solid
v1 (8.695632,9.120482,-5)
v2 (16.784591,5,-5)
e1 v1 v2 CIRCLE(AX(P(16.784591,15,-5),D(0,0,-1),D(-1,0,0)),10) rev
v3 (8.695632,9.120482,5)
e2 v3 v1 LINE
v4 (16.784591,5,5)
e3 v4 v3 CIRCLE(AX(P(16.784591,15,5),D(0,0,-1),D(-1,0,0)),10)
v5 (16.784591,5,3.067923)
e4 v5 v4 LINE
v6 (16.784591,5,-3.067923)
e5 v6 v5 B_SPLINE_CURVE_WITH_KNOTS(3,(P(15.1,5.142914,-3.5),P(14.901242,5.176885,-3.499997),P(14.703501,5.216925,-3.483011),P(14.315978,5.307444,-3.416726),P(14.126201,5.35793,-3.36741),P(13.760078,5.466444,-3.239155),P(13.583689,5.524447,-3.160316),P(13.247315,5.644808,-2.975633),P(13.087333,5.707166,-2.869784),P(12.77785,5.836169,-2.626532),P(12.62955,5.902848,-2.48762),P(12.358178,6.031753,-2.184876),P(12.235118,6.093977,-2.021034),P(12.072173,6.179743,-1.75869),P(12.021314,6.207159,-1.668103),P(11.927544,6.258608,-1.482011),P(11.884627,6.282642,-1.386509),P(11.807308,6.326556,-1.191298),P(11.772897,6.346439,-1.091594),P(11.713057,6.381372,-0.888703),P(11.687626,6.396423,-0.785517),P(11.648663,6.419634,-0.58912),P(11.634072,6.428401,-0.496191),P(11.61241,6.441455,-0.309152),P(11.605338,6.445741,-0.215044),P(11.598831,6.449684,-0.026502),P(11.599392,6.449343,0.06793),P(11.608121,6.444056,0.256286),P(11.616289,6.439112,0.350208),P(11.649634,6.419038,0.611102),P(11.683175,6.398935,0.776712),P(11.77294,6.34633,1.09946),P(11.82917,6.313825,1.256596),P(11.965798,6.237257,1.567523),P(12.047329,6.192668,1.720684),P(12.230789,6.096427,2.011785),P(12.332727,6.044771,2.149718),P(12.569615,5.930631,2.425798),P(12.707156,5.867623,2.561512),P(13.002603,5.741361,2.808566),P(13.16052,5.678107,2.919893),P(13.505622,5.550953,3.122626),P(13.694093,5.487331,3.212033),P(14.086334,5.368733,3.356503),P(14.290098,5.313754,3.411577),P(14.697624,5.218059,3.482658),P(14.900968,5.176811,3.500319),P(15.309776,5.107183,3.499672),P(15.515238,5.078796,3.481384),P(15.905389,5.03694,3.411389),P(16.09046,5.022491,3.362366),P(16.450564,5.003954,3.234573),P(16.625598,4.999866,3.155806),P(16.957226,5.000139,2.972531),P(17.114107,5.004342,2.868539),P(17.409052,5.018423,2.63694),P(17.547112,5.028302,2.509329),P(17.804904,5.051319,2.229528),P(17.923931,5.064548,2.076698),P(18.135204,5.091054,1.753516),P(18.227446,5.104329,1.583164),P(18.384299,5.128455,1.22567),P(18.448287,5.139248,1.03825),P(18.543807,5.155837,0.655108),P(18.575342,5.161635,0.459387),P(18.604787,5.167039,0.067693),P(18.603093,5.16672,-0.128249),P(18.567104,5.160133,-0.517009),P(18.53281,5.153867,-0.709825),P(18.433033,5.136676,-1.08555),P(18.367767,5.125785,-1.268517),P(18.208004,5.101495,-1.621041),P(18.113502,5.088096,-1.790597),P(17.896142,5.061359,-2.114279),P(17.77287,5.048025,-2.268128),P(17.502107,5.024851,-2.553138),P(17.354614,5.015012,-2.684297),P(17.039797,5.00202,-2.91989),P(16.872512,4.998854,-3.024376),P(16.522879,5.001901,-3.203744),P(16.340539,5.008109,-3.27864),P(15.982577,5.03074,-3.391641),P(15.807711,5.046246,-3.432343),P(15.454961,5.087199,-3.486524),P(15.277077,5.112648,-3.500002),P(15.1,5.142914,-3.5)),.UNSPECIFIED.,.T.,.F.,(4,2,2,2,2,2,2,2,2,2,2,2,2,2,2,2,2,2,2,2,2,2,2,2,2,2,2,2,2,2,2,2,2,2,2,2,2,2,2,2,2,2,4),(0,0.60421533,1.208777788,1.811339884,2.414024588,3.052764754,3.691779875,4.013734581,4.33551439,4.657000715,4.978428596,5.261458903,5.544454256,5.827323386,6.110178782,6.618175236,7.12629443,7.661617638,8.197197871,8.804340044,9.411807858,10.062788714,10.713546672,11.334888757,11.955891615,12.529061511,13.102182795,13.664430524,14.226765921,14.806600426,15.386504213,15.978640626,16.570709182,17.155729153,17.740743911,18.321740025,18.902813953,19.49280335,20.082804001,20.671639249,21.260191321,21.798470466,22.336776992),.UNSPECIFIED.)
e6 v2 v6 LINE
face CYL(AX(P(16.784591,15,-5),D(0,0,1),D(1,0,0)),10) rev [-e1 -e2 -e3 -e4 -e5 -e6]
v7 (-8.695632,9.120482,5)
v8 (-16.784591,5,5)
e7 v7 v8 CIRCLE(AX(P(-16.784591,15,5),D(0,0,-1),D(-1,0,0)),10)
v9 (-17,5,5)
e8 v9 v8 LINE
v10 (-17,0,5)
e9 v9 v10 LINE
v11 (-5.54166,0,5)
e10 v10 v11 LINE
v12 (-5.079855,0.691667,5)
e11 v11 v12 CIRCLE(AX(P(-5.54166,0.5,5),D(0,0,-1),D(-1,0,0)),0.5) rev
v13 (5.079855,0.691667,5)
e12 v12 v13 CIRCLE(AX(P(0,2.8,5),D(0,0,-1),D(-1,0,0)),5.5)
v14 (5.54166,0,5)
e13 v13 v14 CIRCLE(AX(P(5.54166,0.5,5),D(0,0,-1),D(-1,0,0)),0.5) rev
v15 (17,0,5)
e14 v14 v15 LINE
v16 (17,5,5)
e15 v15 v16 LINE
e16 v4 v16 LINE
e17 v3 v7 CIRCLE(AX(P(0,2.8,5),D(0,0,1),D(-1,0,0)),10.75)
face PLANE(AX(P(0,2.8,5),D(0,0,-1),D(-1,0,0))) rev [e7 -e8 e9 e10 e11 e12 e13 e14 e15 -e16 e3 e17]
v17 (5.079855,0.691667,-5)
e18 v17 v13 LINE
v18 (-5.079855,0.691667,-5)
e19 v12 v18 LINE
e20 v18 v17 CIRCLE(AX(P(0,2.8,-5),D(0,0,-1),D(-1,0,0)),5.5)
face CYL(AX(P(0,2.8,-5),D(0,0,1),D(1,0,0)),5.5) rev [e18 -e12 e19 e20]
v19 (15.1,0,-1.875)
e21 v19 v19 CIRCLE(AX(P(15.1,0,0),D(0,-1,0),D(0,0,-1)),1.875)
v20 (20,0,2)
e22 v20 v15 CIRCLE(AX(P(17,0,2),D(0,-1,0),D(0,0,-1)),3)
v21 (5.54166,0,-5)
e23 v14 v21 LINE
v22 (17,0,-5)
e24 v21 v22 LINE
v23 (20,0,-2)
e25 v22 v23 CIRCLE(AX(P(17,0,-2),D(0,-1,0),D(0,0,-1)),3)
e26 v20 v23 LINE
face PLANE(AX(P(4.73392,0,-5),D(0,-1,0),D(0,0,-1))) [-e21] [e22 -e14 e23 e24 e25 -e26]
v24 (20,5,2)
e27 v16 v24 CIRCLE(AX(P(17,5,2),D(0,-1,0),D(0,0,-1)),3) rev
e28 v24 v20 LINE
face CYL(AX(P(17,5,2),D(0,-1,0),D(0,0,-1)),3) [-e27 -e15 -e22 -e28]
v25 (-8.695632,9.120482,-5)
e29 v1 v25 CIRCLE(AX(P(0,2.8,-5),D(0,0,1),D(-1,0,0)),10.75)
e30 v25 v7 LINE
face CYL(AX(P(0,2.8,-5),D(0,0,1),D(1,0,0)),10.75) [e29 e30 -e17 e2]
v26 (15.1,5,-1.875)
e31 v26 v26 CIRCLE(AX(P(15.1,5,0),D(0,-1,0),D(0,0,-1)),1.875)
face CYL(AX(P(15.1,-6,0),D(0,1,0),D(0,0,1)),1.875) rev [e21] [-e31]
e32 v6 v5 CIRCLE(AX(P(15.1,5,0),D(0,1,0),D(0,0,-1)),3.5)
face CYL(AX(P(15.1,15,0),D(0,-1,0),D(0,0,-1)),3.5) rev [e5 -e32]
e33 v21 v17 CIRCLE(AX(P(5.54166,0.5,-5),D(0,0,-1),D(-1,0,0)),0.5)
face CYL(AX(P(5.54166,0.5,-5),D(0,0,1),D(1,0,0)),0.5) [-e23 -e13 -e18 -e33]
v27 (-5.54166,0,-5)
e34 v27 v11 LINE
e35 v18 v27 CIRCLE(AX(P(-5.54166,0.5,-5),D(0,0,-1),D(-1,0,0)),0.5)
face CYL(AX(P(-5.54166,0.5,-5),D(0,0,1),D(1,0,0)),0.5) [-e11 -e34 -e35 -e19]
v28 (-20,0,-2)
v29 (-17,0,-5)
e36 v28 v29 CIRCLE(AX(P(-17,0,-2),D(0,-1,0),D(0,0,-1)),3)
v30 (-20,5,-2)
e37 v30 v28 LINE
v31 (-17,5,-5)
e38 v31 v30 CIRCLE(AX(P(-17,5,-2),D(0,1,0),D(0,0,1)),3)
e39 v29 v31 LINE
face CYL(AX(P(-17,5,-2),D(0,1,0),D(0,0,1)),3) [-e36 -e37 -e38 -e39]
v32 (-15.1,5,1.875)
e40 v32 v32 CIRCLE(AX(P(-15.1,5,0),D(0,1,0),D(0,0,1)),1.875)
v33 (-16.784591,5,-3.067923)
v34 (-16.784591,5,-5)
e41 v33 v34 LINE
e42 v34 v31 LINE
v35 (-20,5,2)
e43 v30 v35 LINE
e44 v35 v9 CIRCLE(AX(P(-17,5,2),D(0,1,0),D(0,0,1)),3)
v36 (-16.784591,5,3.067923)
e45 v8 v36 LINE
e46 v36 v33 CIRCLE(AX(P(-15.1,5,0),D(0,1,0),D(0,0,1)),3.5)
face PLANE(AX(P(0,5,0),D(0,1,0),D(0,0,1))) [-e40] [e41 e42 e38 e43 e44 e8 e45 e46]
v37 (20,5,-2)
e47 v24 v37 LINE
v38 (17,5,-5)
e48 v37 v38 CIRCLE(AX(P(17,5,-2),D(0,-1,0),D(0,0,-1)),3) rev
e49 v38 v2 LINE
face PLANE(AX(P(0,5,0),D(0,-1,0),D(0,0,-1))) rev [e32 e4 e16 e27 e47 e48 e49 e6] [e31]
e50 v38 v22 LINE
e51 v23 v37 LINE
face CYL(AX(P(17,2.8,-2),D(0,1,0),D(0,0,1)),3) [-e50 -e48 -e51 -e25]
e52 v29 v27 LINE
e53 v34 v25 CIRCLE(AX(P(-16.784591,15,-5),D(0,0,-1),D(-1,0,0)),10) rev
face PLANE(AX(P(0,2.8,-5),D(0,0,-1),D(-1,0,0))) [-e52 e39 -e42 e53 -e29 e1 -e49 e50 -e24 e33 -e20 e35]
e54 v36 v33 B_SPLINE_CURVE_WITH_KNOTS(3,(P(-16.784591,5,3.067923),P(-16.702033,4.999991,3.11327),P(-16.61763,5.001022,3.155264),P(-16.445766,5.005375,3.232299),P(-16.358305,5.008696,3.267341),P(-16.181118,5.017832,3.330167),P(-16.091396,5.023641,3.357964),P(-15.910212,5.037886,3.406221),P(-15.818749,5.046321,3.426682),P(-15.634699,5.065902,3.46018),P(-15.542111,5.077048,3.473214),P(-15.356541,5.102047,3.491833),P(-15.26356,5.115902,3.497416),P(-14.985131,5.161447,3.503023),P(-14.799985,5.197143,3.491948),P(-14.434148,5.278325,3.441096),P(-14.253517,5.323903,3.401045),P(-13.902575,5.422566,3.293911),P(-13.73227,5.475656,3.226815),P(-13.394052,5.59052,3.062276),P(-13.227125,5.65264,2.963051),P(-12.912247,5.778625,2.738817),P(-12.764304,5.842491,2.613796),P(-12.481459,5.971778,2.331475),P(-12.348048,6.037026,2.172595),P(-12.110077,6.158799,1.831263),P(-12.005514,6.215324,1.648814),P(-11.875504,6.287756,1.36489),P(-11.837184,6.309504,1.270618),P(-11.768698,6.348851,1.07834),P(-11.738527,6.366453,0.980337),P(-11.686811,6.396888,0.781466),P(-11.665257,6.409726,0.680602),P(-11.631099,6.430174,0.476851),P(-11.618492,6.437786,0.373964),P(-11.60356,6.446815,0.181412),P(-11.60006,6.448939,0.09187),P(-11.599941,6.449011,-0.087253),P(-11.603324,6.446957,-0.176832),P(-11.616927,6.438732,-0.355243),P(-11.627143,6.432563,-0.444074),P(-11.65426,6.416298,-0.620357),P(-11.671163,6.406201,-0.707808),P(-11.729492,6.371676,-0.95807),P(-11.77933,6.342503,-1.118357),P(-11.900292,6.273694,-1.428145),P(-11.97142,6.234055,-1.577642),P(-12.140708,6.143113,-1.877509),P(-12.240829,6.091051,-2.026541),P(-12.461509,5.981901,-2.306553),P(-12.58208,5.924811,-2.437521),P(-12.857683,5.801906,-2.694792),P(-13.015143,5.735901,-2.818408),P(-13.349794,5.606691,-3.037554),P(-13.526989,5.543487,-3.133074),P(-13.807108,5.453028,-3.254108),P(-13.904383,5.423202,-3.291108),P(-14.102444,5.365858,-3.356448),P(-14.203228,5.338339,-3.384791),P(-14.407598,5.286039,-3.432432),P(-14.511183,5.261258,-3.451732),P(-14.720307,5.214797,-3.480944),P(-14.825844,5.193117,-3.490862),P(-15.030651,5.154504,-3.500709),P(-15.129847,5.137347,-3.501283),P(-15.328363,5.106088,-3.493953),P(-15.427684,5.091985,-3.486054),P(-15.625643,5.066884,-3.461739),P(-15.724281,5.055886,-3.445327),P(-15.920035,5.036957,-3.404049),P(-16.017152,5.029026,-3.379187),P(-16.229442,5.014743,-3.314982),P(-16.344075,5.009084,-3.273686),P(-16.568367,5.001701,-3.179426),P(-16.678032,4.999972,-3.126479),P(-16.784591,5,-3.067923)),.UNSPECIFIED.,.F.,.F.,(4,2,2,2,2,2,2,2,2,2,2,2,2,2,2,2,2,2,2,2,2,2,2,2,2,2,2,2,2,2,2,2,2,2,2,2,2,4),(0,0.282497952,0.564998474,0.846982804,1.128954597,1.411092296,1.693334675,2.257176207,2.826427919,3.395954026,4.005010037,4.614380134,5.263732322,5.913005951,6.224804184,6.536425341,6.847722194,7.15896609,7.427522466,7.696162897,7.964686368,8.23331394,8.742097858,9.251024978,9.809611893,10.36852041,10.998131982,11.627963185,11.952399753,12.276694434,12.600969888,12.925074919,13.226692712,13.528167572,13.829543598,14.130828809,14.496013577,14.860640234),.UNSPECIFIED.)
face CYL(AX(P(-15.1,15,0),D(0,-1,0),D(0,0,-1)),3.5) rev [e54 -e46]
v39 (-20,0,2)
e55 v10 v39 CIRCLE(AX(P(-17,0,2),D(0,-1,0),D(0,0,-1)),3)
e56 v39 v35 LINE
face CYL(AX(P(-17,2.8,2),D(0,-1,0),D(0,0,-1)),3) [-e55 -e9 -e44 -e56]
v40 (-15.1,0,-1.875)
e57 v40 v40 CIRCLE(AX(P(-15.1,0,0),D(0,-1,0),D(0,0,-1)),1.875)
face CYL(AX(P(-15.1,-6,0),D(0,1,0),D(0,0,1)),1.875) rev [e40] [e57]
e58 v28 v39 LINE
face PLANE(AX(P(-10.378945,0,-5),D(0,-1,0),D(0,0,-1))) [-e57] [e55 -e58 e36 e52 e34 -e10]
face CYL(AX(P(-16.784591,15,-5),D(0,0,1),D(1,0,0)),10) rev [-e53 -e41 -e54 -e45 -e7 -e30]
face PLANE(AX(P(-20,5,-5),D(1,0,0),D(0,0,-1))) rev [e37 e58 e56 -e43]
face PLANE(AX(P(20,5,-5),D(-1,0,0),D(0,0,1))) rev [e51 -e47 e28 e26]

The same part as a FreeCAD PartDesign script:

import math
import FreeCAD as App
import Part
import Sketcher
Q = App.Units.Quantity


def edges_at(feature, points):
    """Names of the edges that pass closest to the given points."""
    edges = feature.Shape.Edges
    near = lambda p: min(range(len(edges)), key=lambda i: edges[i].distToShape(Part.Vertex(*p))[0])
    return sorted({f"Edge{near(p) + 1}" for p in points})

doc = App.newDocument("Part")
body = doc.addObject("PartDesign::Body", "Body")

sketch1 = body.newObject("Sketcher::SketchObject", "Sketch")
sketch1.AttachmentSupport = (doc.getObject("XZ_Plane"), [""])
sketch1.MapMode = "FlatFace"
sketch1.AttachmentOffset = App.Placement(App.Vector(0, 0, 1), App.Rotation())
sketch1.addGeometry([
    Part.LineSegment(App.Vector(-20, -5, 0), App.Vector(-20, 5, 0)),
    Part.LineSegment(App.Vector(-20, 5, 0), App.Vector(20, 5, 0)),
    Part.LineSegment(App.Vector(20, 5, 0), App.Vector(20, -5, 0)),
    Part.LineSegment(App.Vector(20, -5, 0), App.Vector(-20, -5, 0)),
], False)
sketch1.addConstraint([
    Sketcher.Constraint("Coincident", 0, 2, 1, 1),
    Sketcher.Constraint("Coincident", 1, 2, 2, 1),
    Sketcher.Constraint("Coincident", 2, 2, 3, 1),
    Sketcher.Constraint("Coincident", 3, 2, 0, 1),
    Sketcher.Constraint("Vertical", 0),
    Sketcher.Constraint("Horizontal", 1),
    Sketcher.Constraint("Vertical", 2),
    Sketcher.Constraint("Horizontal", 3),
    Sketcher.Constraint("Symmetric", 0, 2, 2, 2, -1, 1),
    Sketcher.Constraint("DistanceX", 1, 1, 1, 2, Q("40 mm")),
    Sketcher.Constraint("DistanceY", 0, 1, 0, 2, Q("10 mm")),
])
pad1 = body.newObject("PartDesign::Pad", "Pad")
pad1.Profile = sketch1
pad1.Length = 5
doc.recompute()

fillet = body.newObject("PartDesign::Fillet", "Fillet")
fillet.Base = (pad1, edges_at(pad1, [
    (20, -3.5, 5),
    (-20, -3.5, 5),
    (-20, -3.5, -5),
    (20, -3.5, -5),
]))
fillet.Radius = 3
body2 = doc.addObject("PartDesign::Body", "Body001")

sketch2 = body2.newObject("Sketcher::SketchObject", "Sketch001")
sketch2.AttachmentSupport = (doc.getObject("XY_Plane001"), [""])
sketch2.MapMode = "FlatFace"
sketch2.addGeometry([
    Part.LineSegment(App.Vector(-10, 0, 0), App.Vector(-5, 0, 0)),
    Part.ArcOfCircle(Part.Circle(App.Vector(0, 3, 0), App.Vector(0, 0, 1), 6), math.radians(-31), math.radians(211)),
    Part.LineSegment(App.Vector(5, 0, 0), App.Vector(10, 0, 0)),
    Part.ArcOfCircle(Part.Circle(App.Vector(0, 3, 0), App.Vector(0, 0, 1), 11), math.radians(-15), math.radians(195)),
], False)
sketch2.addConstraint([
    Sketcher.Constraint("Coincident", 0, 2, 1, 2),
    Sketcher.Constraint("Coincident", 1, 1, 2, 1),
    Sketcher.Constraint("Coincident", 2, 2, 3, 1),
    Sketcher.Constraint("Coincident", 3, 2, 0, 1),
    Sketcher.Constraint("Horizontal", 0),
    Sketcher.Constraint("Horizontal", 2),
    Sketcher.Constraint("Coincident", 3, 3, 1, 3),
    Sketcher.Constraint("Symmetric", 0, 2, 1, 1, -1, 1),
    Sketcher.Constraint("PointOnObject", 1, 3, -2),
    Sketcher.Constraint("Radius", 1, Q("5.5 mm")),
    Sketcher.Constraint("Radius", 3, Q("10.75 mm")),
    Sketcher.Constraint("DistanceY", -1, 1, 1, 3, Q("2.8 mm")),
])
pad2 = body2.newObject("PartDesign::Pad", "Pad001")
pad2.Profile = sketch2
pad2.Type = "TwoLengths"
pad2.Length = 5
pad2.Length2 = 5

sketch3 = body2.newObject("Sketcher::SketchObject", "Sketch002")
sketch3.AttachmentSupport = (doc.getObject("XZ_Plane001"), [""])
sketch3.MapMode = "FlatFace"
sketch3.addGeometry([
    Part.LineSegment(App.Vector(-20, -5, 0), App.Vector(-20, 5, 0)),
    Part.LineSegment(App.Vector(-20, 5, 0), App.Vector(-10, 5, 0)),
    Part.LineSegment(App.Vector(-10, 5, 0), App.Vector(-10, -5, 0)),
    Part.LineSegment(App.Vector(-10, -5, 0), App.Vector(-20, -5, 0)),
    Part.LineSegment(App.Vector(10, -5, 0), App.Vector(10, 5, 0)),
    Part.LineSegment(App.Vector(10, 5, 0), App.Vector(20, 5, 0)),
    Part.LineSegment(App.Vector(20, 5, 0), App.Vector(20, -5, 0)),
    Part.LineSegment(App.Vector(20, -5, 0), App.Vector(10, -5, 0)),
], False)
sketch3.addConstraint([
    Sketcher.Constraint("Coincident", 0, 2, 1, 1),
    Sketcher.Constraint("Coincident", 1, 2, 2, 1),
    Sketcher.Constraint("Coincident", 2, 2, 3, 1),
    Sketcher.Constraint("Coincident", 3, 2, 0, 1),
    Sketcher.Constraint("Coincident", 4, 2, 5, 1),
    Sketcher.Constraint("Coincident", 5, 2, 6, 1),
    Sketcher.Constraint("Coincident", 6, 2, 7, 1),
    Sketcher.Constraint("Coincident", 7, 2, 4, 1),
    Sketcher.Constraint("Vertical", 0),
    Sketcher.Constraint("Horizontal", 1),
    Sketcher.Constraint("Vertical", 2),
    Sketcher.Constraint("Horizontal", 3),
    Sketcher.Constraint("Vertical", 4),
    Sketcher.Constraint("Horizontal", 5),
    Sketcher.Constraint("Vertical", 6),
    Sketcher.Constraint("Horizontal", 7),
    Sketcher.Constraint("Symmetric", 2, 2, 4, 2, -1, 1),
    Sketcher.Constraint("Symmetric", 0, 2, 6, 2, -1, 1),
    Sketcher.Constraint("Horizontal", 1, 2, 4, 2),
    Sketcher.Constraint("Equal", 7, 0),
    Sketcher.Constraint("DistanceX", 1, 1, 1, 2, Q("10 mm")),
    Sketcher.Constraint("DistanceX", 0, 2, -1, 1, Q("20 mm")),
])
pad3 = body2.newObject("PartDesign::Pad", "Pad002")
pad3.Profile = sketch3
pad3.Length = 5
pad3.Reversed = True
doc.recompute()

fillet2 = body2.newObject("PartDesign::Fillet", "Fillet001")
fillet2.Base = (pad3, edges_at(pad3, [
    (-20, 2.5, -5),
    (-20, 2.5, 5),
    (20, 2.5, 5),
    (20, 2.5, -5),
]))
fillet2.Radius = 3
doc.recompute()

fillet3 = body2.newObject("PartDesign::Fillet", "Fillet002")
fillet3.Base = (fillet2, edges_at(fillet2, [(-4.734, 0, 0), (4.734, 0, 0)]))
fillet3.Radius = 0.5
doc.recompute()

fillet4 = body2.newObject("PartDesign::Fillet", "Fillet003")
fillet4.Base = (fillet3, edges_at(fillet3, [(-10.522, 5, 0), (10.522, 5, 0)]))
fillet4.Radius = 10
body3 = doc.addObject("PartDesign::Body", "Body002")
body3.AllowCompound = True

sketch4 = body3.newObject("Sketcher::SketchObject", "Sketch003")
sketch4.AttachmentSupport = (doc.getObject("XZ_Plane002"), [""])
sketch4.MapMode = "FlatFace"
sketch4.addGeometry([
    Part.Circle(App.Vector(-15.1, 0, 0), App.Vector(0, 0, 1), 1.9),
    Part.Circle(App.Vector(15.1, 0, 0), App.Vector(0, 0, 1), 1.9),
], False)
sketch4.addConstraint([
    Sketcher.Constraint("Equal", 0, 1),
    Sketcher.Constraint("Symmetric", 0, 3, 1, 3, -1, 1),
    Sketcher.Constraint("PointOnObject", 0, 3, -1),
    Sketcher.Constraint("Diameter", 0, Q("3.75 mm")),
    Sketcher.Constraint("DistanceX", 0, 3, -1, 1, Q("15.1 mm")),
])
pad4 = body3.newObject("PartDesign::Pad", "Pad003")
pad4.Profile = sketch4
pad4.Type = "TwoLengths"
pad4.Length = 25.66987
pad4.Length2 = 25.66987
pad4.Reversed = True
doc.recompute()

body4 = doc.addObject("PartDesign::Body", "Body003")
body4.BaseFeature = body3
boolean = body.newObject("PartDesign::Boolean", "Boolean")
boolean.Type = "Cut"
boolean.addObjects([body4])
doc.recompute()

sketch5 = body.newObject("Sketcher::SketchObject", "Sketch004")
sketch5.AttachmentSupport = (doc.getObject("XZ_Plane"), [""])
sketch5.MapMode = "FlatFace"
sketch5.addGeometry([
    Part.LineSegment(App.Vector(-28, -10, 0), App.Vector(-28, 13, 0)),
    Part.LineSegment(App.Vector(-28, 13, 0), App.Vector(24, 13, 0)),
    Part.LineSegment(App.Vector(24, 13, 0), App.Vector(24, -10, 0)),
    Part.LineSegment(App.Vector(24, -10, 0), App.Vector(-28, -10, 0)),
], False)
sketch5.addConstraint([
    Sketcher.Constraint("Coincident", 0, 2, 1, 1),
    Sketcher.Constraint("Coincident", 1, 2, 2, 1),
    Sketcher.Constraint("Coincident", 2, 2, 3, 1),
    Sketcher.Constraint("Coincident", 3, 2, 0, 1),
    Sketcher.Constraint("Vertical", 0),
    Sketcher.Constraint("Horizontal", 1),
    Sketcher.Constraint("Vertical", 2),
    Sketcher.Constraint("Horizontal", 3),
    Sketcher.Constraint("DistanceY", 0, 1, 0, 2, Q("23.044769 mm")),
    Sketcher.Constraint("DistanceX", 1, 1, 1, 2, Q("51.703076 mm")),
    Sketcher.Constraint("DistanceX", 0, 2, -1, 1, Q("27.54486 mm")),
    Sketcher.Constraint("DistanceY", -1, 1, 0, 2, Q("13.243824 mm")),
])
pocket1 = body.newObject("PartDesign::Pocket", "Pocket")
pocket1.Profile = sketch5
pocket1.Type = "ThroughAll"
pocket1.Reversed = True
doc.recompute()

boolean2 = body2.newObject("PartDesign::Boolean", "Boolean001")
boolean2.Type = "Cut"
boolean2.addObjects([body3])

sketch6 = body2.newObject("Sketcher::SketchObject", "Sketch005")
sketch6.AttachmentSupport = (doc.getObject("XZ_Plane001"), [""])
sketch6.MapMode = "FlatFace"
sketch6.AttachmentOffset = App.Placement(App.Vector(0, 0, -5), App.Rotation())
sketch6.addGeometry([
    Part.Circle(App.Vector(-15.1, 0, 0), App.Vector(0, 0, 1), 3.5),
    Part.Circle(App.Vector(15.1, 0, 0), App.Vector(0, 0, 1), 3.5),
], False)
sketch6.addConstraint([
    Sketcher.Constraint("Equal", 0, 1),
    Sketcher.Constraint("Symmetric", 0, 3, 1, 3, -1, 1),
    Sketcher.Constraint("PointOnObject", 0, 3, -1),
    Sketcher.Constraint("Diameter", 0, Q("7 mm")),
    Sketcher.Constraint("DistanceX", 0, 3, -1, 1, Q("15.1 mm")),
])
pocket2 = body2.newObject("PartDesign::Pocket", "Pocket001")
pocket2.Profile = sketch6
pocket2.Length = 10

doc.recompute()
